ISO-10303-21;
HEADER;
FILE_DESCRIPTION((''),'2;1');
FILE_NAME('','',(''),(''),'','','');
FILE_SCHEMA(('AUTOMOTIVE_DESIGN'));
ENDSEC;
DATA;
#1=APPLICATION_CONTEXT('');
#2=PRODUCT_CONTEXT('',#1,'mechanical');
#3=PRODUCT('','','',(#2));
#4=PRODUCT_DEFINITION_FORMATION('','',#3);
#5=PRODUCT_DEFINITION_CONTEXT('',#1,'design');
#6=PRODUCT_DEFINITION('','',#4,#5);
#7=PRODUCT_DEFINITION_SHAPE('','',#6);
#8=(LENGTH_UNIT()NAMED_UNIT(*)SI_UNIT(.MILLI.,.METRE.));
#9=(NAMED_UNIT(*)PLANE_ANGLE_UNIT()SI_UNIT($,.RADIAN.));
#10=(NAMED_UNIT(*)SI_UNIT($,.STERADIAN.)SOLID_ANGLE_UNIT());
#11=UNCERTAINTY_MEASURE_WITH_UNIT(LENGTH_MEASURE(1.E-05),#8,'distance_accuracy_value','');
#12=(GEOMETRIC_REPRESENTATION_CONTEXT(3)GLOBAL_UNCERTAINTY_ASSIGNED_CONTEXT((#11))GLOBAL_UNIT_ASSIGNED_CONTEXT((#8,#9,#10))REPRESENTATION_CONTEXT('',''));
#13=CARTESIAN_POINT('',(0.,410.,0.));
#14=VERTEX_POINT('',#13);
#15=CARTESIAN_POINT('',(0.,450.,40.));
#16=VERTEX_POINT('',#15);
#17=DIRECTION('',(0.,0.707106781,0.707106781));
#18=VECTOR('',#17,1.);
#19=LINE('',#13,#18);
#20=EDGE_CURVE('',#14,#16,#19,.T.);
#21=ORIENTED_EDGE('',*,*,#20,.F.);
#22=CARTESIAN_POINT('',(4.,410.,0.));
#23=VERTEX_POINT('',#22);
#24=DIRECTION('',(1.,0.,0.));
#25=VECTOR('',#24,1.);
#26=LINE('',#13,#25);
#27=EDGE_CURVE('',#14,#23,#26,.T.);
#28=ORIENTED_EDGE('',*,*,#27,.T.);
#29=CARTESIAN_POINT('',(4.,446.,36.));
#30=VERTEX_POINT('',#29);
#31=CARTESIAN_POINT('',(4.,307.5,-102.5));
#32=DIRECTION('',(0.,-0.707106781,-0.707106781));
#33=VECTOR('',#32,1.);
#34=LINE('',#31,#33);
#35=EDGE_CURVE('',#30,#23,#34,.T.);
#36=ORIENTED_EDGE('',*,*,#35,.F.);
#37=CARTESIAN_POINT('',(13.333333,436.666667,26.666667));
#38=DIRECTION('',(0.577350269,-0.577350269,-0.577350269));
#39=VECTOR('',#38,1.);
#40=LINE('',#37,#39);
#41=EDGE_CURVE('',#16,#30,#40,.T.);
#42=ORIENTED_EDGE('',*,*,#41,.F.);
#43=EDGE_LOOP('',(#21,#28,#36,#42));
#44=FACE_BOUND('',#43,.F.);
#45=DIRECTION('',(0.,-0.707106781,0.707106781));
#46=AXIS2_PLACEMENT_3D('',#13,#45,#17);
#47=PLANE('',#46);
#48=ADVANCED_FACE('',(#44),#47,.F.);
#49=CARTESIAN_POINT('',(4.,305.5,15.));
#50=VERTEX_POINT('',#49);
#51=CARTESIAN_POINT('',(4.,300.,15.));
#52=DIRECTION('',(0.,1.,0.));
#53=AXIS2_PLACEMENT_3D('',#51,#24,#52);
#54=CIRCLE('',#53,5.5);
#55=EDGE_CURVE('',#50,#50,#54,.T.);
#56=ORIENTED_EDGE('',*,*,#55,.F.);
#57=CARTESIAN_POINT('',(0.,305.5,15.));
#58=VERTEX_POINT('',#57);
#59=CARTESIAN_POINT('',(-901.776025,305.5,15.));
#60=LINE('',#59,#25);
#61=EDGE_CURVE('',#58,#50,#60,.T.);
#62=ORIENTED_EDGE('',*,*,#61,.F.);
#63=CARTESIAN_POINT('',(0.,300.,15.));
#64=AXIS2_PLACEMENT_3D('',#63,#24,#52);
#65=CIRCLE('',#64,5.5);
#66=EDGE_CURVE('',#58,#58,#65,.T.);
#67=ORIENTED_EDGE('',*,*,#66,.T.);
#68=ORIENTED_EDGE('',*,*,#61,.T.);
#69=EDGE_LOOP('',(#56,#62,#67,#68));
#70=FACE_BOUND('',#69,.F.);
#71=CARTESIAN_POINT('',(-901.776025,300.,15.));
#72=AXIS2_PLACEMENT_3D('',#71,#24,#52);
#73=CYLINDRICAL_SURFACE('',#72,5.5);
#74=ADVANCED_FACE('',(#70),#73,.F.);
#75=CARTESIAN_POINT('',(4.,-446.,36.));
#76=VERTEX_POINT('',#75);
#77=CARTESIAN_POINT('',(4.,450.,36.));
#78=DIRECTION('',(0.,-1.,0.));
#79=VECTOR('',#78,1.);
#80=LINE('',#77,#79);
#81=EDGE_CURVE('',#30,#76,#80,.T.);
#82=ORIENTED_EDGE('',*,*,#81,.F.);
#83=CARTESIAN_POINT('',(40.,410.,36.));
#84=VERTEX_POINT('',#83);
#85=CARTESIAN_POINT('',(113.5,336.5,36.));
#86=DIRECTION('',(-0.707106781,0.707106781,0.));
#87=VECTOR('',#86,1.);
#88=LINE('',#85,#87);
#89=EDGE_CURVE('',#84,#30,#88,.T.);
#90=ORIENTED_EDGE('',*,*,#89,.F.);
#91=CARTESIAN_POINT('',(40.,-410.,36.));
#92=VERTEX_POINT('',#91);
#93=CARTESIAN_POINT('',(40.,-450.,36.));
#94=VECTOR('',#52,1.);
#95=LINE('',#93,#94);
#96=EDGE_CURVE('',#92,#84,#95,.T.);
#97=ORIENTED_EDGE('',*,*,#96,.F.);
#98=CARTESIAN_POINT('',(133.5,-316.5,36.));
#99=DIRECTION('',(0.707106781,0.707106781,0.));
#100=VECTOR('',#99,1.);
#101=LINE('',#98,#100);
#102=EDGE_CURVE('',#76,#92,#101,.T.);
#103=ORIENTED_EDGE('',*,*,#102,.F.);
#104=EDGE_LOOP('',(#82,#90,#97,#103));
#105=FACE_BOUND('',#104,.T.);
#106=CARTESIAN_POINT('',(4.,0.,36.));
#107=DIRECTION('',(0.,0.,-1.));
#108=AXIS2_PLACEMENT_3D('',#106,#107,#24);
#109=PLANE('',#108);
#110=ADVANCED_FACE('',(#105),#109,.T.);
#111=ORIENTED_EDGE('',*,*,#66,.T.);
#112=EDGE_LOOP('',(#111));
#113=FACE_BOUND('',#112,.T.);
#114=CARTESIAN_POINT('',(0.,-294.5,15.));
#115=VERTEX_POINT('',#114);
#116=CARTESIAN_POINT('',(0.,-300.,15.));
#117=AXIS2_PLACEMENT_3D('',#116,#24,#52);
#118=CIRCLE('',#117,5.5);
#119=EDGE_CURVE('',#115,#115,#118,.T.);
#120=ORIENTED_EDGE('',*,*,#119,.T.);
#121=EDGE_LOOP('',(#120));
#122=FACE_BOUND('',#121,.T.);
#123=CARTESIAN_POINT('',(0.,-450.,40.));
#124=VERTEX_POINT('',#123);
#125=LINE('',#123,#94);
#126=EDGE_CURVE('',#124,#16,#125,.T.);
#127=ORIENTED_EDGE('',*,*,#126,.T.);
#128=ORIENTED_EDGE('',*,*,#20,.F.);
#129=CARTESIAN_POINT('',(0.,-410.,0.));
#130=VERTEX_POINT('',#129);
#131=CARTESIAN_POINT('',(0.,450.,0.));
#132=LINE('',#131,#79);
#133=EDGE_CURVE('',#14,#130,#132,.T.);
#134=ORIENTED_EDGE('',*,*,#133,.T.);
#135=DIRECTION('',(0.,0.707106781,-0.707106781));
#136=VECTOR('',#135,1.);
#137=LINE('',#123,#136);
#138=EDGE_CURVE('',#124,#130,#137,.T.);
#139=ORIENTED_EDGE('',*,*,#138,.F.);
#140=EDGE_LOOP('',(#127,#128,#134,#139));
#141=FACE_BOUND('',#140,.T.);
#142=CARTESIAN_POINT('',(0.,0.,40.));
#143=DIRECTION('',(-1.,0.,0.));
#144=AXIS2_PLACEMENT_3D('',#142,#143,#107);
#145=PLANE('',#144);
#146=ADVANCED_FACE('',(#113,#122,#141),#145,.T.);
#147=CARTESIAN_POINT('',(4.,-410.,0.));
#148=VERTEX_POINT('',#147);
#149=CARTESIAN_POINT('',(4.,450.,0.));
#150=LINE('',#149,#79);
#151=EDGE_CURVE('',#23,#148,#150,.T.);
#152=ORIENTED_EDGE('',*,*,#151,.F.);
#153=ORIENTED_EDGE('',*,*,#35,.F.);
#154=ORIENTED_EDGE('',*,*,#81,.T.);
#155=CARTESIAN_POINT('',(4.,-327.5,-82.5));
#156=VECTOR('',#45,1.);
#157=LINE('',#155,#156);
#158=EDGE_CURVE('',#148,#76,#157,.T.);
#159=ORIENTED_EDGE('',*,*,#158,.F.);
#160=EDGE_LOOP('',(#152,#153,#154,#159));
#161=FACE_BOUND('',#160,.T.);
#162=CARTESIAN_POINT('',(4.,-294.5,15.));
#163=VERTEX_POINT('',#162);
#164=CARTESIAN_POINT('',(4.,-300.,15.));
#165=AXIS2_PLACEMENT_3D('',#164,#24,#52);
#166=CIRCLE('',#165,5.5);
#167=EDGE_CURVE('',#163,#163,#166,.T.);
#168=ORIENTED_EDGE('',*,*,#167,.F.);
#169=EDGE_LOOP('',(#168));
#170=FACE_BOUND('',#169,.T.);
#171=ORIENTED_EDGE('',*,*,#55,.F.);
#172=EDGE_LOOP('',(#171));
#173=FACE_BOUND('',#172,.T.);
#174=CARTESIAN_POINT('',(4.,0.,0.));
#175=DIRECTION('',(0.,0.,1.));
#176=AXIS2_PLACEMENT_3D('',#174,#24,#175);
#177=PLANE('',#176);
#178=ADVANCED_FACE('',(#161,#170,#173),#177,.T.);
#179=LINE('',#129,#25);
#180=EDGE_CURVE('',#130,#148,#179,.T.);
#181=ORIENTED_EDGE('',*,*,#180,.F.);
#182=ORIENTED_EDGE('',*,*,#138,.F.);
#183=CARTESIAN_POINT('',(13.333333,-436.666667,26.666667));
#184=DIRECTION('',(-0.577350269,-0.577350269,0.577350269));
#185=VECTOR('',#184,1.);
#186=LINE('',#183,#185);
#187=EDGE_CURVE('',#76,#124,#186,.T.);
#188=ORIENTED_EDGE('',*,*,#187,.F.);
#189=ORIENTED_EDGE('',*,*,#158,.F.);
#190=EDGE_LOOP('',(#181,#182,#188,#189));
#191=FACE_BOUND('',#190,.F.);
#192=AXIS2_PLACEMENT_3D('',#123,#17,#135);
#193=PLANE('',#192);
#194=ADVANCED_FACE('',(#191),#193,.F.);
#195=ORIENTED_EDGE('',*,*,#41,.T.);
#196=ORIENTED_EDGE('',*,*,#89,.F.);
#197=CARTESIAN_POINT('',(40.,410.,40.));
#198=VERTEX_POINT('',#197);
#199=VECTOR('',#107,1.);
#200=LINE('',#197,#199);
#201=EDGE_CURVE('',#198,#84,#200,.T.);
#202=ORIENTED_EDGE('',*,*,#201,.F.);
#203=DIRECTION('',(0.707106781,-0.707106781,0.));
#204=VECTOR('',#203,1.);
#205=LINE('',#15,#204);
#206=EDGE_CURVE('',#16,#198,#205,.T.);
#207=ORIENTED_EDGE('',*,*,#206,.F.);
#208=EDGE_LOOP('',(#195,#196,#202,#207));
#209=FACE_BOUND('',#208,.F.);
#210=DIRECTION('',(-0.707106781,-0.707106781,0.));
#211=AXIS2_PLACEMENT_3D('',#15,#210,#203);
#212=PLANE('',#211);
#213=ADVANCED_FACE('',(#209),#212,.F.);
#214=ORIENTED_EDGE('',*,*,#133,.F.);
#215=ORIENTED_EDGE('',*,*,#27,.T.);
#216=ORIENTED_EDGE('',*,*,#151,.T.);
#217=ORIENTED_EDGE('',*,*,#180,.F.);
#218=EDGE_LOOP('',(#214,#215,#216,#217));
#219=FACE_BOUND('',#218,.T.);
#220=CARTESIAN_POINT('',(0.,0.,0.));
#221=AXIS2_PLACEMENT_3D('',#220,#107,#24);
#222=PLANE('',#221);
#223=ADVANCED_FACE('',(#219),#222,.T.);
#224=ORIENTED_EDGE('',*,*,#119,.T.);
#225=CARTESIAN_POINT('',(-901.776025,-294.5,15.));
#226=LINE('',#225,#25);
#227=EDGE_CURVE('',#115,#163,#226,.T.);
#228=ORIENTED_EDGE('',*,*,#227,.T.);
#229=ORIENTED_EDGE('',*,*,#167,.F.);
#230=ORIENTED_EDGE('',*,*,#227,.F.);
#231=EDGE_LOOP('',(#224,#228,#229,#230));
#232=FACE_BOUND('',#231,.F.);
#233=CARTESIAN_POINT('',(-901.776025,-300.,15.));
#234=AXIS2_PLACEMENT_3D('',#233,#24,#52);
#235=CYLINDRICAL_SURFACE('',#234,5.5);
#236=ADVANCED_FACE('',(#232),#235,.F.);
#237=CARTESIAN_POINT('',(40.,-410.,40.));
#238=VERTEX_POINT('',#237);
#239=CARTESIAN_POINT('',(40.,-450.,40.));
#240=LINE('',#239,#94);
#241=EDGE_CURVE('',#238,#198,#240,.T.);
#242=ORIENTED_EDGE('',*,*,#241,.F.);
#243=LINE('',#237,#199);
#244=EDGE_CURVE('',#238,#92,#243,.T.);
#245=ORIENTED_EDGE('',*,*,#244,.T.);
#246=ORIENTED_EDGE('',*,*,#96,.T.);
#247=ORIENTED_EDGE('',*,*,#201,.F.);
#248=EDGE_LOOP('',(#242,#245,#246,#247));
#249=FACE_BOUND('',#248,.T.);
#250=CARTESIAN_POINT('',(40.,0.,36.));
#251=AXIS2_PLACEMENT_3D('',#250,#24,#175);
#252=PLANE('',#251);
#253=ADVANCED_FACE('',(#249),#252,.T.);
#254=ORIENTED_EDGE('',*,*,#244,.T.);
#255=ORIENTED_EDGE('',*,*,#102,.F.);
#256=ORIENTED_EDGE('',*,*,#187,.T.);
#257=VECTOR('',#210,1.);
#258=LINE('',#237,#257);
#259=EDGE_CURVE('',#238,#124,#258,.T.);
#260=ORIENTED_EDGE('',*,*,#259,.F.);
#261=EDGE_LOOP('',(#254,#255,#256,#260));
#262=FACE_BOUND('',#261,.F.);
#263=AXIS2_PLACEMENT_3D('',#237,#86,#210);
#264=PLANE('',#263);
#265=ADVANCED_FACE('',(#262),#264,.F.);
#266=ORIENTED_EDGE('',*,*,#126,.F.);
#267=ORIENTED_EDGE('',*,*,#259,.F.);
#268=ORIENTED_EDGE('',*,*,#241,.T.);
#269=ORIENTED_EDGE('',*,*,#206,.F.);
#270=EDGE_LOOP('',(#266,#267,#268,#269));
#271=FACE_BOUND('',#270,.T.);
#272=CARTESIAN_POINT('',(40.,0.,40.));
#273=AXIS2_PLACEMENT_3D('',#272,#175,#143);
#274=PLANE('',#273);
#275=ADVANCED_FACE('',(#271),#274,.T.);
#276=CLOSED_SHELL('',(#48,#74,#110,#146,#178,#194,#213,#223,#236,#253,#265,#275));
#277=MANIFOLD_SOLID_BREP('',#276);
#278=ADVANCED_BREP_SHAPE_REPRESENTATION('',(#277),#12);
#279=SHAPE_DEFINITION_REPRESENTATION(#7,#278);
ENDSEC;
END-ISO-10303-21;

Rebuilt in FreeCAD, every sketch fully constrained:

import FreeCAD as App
import Part
import Sketcher
from FreeCAD import Vector

doc = App.newDocument("Part")
body = doc.addObject("PartDesign::Body", "Body")

sketch1 = doc.addObject("Sketcher::SketchObject", "Sketch")
body.addObject(sketch1)
sketch1.AttachmentSupport = (doc.XZ_Plane, [""])
sketch1.MapMode = "FlatFace"
sketch1.addGeometry([
    Part.LineSegment(Vector(0, 40, 0), Vector(0, 0, 0)),
    Part.LineSegment(Vector(0, 0, 0), Vector(4, 0, 0)),
    Part.LineSegment(Vector(4, 0, 0), Vector(4, 36, 0)),
    Part.LineSegment(Vector(4, 36, 0), Vector(40, 36, 0)),
    Part.LineSegment(Vector(40, 36, 0), Vector(40, 40, 0)),
    Part.LineSegment(Vector(40, 40, 0), Vector(0, 40, 0)),
], False)
sketch1.addConstraint([
    Sketcher.Constraint("Coincident", 0, 2, 1, 1),
    Sketcher.Constraint("Coincident", 1, 2, 2, 1),
    Sketcher.Constraint("Coincident", 2, 2, 3, 1),
    Sketcher.Constraint("Coincident", 3, 2, 4, 1),
    Sketcher.Constraint("Coincident", 4, 2, 5, 1),
    Sketcher.Constraint("Coincident", 5, 2, 0, 1),
    Sketcher.Constraint("Vertical", 0),
    Sketcher.Constraint("Horizontal", 1),
    Sketcher.Constraint("Vertical", 2),
    Sketcher.Constraint("Horizontal", 3),
    Sketcher.Constraint("Vertical", 4),
    Sketcher.Constraint("Horizontal", 5),
    Sketcher.Constraint("Coincident", 0, 2, -1, 1),
    Sketcher.Constraint("Equal", 5, 0),
    Sketcher.Constraint("Equal", 3, 2),
    Sketcher.Constraint("DistanceX", 1, 1, 1, 2, 4.0),
    Sketcher.Constraint("DistanceX", 3, 1, 3, 2, 36.0),
])
pad1 = doc.addObject("PartDesign::Pad", "Pad")
body.addObject(pad1)
pad1.Profile = sketch1
pad1.Length = 900
pad1.Midplane = True

sketch2 = doc.addObject("Sketcher::SketchObject", "Sketch001")
body.addObject(sketch2)
sketch2.AttachmentSupport = (doc.YZ_Plane, [""])
sketch2.MapMode = "FlatFace"
sketch2.addGeometry([
    Part.LineSegment(Vector(410, 0, 0), Vector(450, 40, 0)),
    Part.LineSegment(Vector(450, 40, 0), Vector(450, 0, 0)),
    Part.LineSegment(Vector(450, 0, 0), Vector(410, 0, 0)),
    Part.LineSegment(Vector(-450, 0, 0), Vector(-450, 40, 0)),
    Part.LineSegment(Vector(-450, 40, 0), Vector(-410, 0, 0)),
    Part.LineSegment(Vector(-410, 0, 0), Vector(-450, 0, 0)),
], False)
sketch2.addConstraint([
    Sketcher.Constraint("Coincident", 0, 2, 1, 1),
    Sketcher.Constraint("Coincident", 1, 2, 2, 1),
    Sketcher.Constraint("Coincident", 2, 2, 0, 1),
    Sketcher.Constraint("Coincident", 3, 2, 4, 1),
    Sketcher.Constraint("Coincident", 4, 2, 5, 1),
    Sketcher.Constraint("Coincident", 5, 2, 3, 1),
    Sketcher.Constraint("Vertical", 1),
    Sketcher.Constraint("Horizontal", 2),
    Sketcher.Constraint("Vertical", 3),
    Sketcher.Constraint("Horizontal", 5),
    Sketcher.Constraint("Symmetric", 2, 2, 4, 2, -1, 1),
    Sketcher.Constraint("Symmetric", 0, 2, 3, 2, -2),
    Sketcher.Constraint("PointOnObject", 1, 2, -1),
    Sketcher.Constraint("Perpendicular", 0, 4),
    Sketcher.Constraint("DistanceX", 2, 2, 2, 1, 40.0),
    Sketcher.Constraint("DistanceX", -1, 1, 0, 2, 450.0),
])
pocket1 = doc.addObject("PartDesign::Pocket", "Pocket")
body.addObject(pocket1)
pocket1.Profile = sketch2
pocket1.Length = 40
pocket1.Reversed = True

sketch3 = doc.addObject("Sketcher::SketchObject", "Sketch002")
body.addObject(sketch3)
sketch3.AttachmentSupport = (doc.XY_Plane, [""])
sketch3.MapMode = "FlatFace"
sketch3.AttachmentOffset = App.Placement(Vector(0, 0, 40), App.Rotation())
sketch3.addGeometry([
    Part.LineSegment(Vector(40, 450, 0), Vector(0, 450, 0)),
    Part.LineSegment(Vector(0, 450, 0), Vector(40, 410, 0)),
    Part.LineSegment(Vector(40, 410, 0), Vector(40, 450, 0)),
    Part.LineSegment(Vector(40, -410, 0), Vector(0, -450, 0)),
    Part.LineSegment(Vector(0, -450, 0), Vector(40, -450, 0)),
    Part.LineSegment(Vector(40, -450, 0), Vector(40, -410, 0)),
], False)
sketch3.addConstraint([
    Sketcher.Constraint("Coincident", 0, 2, 1, 1),
    Sketcher.Constraint("Coincident", 1, 2, 2, 1),
    Sketcher.Constraint("Coincident", 2, 2, 0, 1),
    Sketcher.Constraint("Coincident", 3, 2, 4, 1),
    Sketcher.Constraint("Coincident", 4, 2, 5, 1),
    Sketcher.Constraint("Coincident", 5, 2, 3, 1),
    Sketcher.Constraint("Horizontal", 0),
    Sketcher.Constraint("Vertical", 2),
    Sketcher.Constraint("Horizontal", 4),
    Sketcher.Constraint("Vertical", 5),
    Sketcher.Constraint("Symmetric", 0, 2, 3, 2, -1, 1),
    Sketcher.Constraint("Symmetric", 1, 2, 5, 2, -1),
    Sketcher.Constraint("PointOnObject", 0, 2, -2),
    Sketcher.Constraint("Perpendicular", 1, 3),
    Sketcher.Constraint("DistanceX", 0, 2, 0, 1, 40.0),
    Sketcher.Constraint("DistanceY", -1, 1, 0, 2, 450.0),
])
pocket2 = doc.addObject("PartDesign::Pocket", "Pocket001")
body.addObject(pocket2)
pocket2.Profile = sketch3
pocket2.Length = 40

sketch4 = doc.addObject("Sketcher::SketchObject", "Sketch003")
body.addObject(sketch4)
sketch4.AttachmentSupport = (doc.YZ_Plane, [""])
sketch4.MapMode = "FlatFace"
sketch4.addGeometry([
    Part.Circle(Vector(-300, 15, 0), Vector(0, 0, 1), 5.5),
    Part.Circle(Vector(300, 15, 0), Vector(0, 0, 1), 5.5),
], False)
sketch4.addConstraint([
    Sketcher.Constraint("Equal", 0, 1),
    Sketcher.Constraint("Symmetric", 0, 3, 1, 3, -2),
    Sketcher.Constraint("Diameter", 0, 11.0),
    Sketcher.Constraint("DistanceX", 0, 3, -1, 1, 300.0),
    Sketcher.Constraint("DistanceY", -1, 1, 0, 3, 15.0),
])
doc.recompute()
hole = doc.addObject("PartDesign::Hole", "Hole")
body.addObject(hole)
hole.Profile = sketch4
hole.ThreadType = "None"
hole.Diameter = 11
hole.DepthType = "ThroughAll"
hole.Reversed = True

doc.recompute()
